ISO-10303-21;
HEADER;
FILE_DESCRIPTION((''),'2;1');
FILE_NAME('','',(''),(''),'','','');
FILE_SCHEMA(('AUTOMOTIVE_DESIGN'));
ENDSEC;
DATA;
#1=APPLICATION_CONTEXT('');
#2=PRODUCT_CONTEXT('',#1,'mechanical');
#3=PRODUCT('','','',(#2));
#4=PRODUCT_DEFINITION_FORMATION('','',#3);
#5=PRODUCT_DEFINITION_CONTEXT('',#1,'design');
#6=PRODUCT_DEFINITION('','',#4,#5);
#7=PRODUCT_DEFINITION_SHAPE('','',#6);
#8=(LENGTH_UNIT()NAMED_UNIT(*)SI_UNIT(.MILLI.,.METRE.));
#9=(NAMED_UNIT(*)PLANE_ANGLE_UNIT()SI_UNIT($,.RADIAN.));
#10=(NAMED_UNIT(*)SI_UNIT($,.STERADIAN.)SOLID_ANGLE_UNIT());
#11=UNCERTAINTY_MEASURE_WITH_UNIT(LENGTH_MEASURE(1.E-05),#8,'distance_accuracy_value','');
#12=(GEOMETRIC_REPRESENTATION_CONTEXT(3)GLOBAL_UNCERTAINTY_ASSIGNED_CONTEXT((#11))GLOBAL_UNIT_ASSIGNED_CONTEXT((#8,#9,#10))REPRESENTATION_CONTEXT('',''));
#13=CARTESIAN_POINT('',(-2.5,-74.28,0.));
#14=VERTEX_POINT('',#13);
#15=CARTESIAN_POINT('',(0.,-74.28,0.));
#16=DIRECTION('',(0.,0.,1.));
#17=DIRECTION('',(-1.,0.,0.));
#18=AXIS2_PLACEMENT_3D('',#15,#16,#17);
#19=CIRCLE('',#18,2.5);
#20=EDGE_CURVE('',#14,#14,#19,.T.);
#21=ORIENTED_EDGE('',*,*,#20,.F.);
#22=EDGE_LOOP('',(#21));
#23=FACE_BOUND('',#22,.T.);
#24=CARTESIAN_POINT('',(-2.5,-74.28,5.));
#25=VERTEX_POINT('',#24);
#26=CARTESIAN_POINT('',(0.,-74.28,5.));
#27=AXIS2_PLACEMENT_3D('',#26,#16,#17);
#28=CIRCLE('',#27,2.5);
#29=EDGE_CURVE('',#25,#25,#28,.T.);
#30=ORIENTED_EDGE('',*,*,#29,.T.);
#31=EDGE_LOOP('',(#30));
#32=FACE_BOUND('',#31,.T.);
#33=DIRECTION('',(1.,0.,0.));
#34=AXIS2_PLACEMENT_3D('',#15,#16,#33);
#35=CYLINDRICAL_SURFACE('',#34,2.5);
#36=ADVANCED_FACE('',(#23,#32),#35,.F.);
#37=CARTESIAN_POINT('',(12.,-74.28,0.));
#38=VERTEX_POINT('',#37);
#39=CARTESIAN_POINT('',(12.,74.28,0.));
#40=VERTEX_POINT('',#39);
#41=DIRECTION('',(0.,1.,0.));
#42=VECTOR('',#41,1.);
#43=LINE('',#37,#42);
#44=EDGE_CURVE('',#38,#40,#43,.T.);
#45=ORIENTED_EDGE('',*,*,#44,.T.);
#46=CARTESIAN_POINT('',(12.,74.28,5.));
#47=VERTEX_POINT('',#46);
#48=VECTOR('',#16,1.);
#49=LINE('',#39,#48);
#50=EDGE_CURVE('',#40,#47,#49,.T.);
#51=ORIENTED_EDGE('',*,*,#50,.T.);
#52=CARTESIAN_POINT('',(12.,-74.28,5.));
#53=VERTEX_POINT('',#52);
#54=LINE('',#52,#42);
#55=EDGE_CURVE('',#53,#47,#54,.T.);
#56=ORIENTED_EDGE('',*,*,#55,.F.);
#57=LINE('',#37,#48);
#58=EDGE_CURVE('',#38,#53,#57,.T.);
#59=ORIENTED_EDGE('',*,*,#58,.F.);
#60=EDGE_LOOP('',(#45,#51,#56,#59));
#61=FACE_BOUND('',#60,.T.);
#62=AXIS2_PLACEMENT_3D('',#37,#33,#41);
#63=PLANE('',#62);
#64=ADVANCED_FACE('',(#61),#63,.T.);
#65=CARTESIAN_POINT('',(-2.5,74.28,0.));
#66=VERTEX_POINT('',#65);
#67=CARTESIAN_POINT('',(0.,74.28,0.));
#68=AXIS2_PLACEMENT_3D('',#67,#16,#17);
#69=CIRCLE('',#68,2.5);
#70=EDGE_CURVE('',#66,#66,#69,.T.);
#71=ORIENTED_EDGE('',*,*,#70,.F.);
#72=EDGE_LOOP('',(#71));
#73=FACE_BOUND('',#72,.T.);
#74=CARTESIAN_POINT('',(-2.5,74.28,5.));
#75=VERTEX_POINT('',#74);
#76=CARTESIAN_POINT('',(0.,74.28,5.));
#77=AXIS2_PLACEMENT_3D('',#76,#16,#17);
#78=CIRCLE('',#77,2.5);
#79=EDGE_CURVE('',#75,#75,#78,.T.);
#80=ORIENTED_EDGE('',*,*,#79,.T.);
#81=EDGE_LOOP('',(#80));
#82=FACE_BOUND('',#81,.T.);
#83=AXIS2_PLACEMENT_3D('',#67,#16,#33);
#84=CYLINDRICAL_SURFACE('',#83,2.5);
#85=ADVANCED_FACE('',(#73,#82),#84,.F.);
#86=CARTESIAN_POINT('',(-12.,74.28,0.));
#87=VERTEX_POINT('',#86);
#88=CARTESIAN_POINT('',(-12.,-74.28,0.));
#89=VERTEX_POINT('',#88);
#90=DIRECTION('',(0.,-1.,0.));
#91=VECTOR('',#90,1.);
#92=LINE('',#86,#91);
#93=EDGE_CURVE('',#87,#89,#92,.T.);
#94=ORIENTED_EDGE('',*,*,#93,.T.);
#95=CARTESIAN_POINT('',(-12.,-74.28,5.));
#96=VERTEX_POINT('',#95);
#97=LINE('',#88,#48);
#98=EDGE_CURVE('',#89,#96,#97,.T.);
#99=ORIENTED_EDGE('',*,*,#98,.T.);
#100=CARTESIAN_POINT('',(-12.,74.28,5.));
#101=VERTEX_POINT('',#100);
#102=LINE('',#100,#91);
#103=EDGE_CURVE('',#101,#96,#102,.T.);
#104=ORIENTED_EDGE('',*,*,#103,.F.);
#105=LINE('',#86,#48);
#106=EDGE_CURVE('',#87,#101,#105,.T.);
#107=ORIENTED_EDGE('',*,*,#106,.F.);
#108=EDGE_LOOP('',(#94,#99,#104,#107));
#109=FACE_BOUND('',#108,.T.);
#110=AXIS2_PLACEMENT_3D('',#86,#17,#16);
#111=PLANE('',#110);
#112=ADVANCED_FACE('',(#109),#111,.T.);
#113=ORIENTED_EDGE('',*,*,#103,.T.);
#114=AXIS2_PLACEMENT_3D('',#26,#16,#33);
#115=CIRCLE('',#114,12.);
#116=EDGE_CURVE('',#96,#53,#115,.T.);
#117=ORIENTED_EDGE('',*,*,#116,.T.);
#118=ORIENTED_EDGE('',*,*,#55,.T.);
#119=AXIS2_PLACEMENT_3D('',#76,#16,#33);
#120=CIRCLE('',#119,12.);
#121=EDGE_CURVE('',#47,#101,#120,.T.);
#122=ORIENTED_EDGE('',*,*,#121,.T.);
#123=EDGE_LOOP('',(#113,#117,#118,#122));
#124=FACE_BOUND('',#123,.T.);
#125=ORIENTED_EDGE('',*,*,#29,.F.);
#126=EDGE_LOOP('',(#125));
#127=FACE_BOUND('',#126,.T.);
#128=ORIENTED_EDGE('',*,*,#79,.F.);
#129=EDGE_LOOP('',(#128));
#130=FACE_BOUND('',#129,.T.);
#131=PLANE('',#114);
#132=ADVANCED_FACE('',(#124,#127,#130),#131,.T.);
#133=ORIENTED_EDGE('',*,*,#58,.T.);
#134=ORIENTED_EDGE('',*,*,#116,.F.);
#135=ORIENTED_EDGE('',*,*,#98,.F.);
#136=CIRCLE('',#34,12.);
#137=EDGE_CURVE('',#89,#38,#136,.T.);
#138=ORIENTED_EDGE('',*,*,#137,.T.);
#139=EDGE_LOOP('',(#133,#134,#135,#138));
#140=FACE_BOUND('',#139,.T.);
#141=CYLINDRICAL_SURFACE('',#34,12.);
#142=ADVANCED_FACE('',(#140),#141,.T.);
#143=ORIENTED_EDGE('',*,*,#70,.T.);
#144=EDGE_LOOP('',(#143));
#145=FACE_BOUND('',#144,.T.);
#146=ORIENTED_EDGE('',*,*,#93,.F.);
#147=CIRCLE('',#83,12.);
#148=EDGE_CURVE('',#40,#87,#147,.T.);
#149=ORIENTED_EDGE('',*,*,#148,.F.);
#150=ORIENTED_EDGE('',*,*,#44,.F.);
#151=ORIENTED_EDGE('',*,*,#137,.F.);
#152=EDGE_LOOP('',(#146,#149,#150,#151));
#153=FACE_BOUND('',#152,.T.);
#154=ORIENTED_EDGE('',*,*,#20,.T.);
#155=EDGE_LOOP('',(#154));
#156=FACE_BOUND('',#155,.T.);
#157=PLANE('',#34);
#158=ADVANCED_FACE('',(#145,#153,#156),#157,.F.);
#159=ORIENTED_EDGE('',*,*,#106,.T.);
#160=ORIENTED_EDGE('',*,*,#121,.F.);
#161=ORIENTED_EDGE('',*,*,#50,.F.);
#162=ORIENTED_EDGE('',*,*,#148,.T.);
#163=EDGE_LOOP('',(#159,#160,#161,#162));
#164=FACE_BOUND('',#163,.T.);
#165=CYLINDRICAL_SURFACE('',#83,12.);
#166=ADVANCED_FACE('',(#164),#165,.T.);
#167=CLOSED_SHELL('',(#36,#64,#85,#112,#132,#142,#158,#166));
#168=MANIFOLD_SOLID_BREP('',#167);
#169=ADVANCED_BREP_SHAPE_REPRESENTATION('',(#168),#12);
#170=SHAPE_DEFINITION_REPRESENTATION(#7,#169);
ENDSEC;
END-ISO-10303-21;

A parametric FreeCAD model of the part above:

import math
import FreeCAD as App
import Part
import Sketcher
from FreeCAD import Vector

doc = App.newDocument("Part")
body = doc.addObject("PartDesign::Body", "Body")

sketch1 = body.newObject("Sketcher::SketchObject", "Sketch")
sketch1.AttachmentSupport = (doc.getObject("XY_Plane"), [""])
sketch1.MapMode = "FlatFace"
sketch1.AttachmentOffset = App.Placement(Vector(0, 0, 5), App.Rotation())
sketch1.addGeometry([
    Part.LineSegment(Vector(12, -74.3, 0), Vector(12, 74.3, 0)),
    Part.ArcOfCircle(Part.Circle(Vector(0, 74.3, 0), Vector(0, 0, 1), 12), math.radians(0), math.radians(180)),
    Part.LineSegment(Vector(-12, 74.3, 0), Vector(-12, -74.3, 0)),
    Part.ArcOfCircle(Part.Circle(Vector(0, -74.3, 0), Vector(0, 0, 1), 12), math.radians(180), math.radians(360)),
    Part.Circle(Vector(0, -74.3, 0), Vector(0, 0, 1), 2.5),
    Part.Circle(Vector(0, 74.3, 0), Vector(0, 0, 1), 2.5),
], False)
sketch1.addConstraint([
    Sketcher.Constraint("Tangent", 0, 2, 1, 1),
    Sketcher.Constraint("Tangent", 1, 2, 2, 1),
    Sketcher.Constraint("Tangent", 2, 2, 3, 1),
    Sketcher.Constraint("Tangent", 3, 2, 0, 1),
    Sketcher.Constraint("Vertical", 0),
    Sketcher.Constraint("Vertical", 2),
    Sketcher.Constraint("Coincident", 4, 3, 3, 3),
    Sketcher.Constraint("Coincident", 5, 3, 1, 3),
    Sketcher.Constraint("Equal", 4, 5),
    Sketcher.Constraint("Symmetric", 1, 3, 3, 3, -1, 1),
    Sketcher.Constraint("Diameter", 4, 5.0),
    Sketcher.Constraint("Radius", 1, 12.0),
    Sketcher.Constraint("DistanceY", 0, 1, 0, 2, 148.56),
])
pad1 = body.newObject("PartDesign::Pad", "Pad")
pad1.Profile = sketch1
pad1.Length = 5
pad1.Reversed = True

doc.recompute()
